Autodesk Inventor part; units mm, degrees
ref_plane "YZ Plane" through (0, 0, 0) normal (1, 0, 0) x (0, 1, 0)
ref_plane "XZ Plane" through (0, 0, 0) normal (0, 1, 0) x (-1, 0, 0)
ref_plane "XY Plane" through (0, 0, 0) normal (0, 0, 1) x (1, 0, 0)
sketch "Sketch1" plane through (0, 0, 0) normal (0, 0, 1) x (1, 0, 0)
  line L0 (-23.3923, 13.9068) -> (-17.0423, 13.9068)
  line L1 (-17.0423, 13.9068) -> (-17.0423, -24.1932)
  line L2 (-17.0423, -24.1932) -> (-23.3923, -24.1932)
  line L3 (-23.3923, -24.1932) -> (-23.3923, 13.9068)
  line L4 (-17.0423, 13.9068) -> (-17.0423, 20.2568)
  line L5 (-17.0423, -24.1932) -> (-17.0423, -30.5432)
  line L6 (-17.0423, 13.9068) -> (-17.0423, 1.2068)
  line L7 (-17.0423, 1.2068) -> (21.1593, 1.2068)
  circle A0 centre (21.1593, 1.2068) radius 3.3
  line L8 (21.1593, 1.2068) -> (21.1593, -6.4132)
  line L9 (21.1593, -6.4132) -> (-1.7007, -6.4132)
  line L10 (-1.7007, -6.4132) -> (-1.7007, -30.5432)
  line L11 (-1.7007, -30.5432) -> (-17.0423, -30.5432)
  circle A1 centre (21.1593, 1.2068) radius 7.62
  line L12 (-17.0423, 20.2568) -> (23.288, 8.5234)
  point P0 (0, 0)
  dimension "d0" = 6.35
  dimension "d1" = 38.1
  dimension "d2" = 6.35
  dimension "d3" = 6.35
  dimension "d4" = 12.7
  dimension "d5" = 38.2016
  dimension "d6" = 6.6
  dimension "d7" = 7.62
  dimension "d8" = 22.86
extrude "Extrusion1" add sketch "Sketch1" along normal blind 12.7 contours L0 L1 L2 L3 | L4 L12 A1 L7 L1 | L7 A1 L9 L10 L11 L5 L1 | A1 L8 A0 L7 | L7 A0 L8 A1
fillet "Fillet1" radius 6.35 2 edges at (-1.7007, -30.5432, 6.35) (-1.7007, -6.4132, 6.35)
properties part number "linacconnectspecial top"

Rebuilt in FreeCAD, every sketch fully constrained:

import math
import FreeCAD as App
import Part
import Sketcher
from FreeCAD import Vector
Q = App.Units.Quantity


def edges_at(feature, points):
    """Names of the edges that pass closest to the given points."""
    edges = feature.Shape.Edges
    near = lambda p: min(range(len(edges)), key=lambda i: edges[i].distToShape(Part.Vertex(*p))[0])
    return sorted({f"Edge{near(p) + 1}" for p in points})

doc = App.newDocument("Part")
body = doc.addObject("PartDesign::Body", "Body")

# Sketch on XY plane
sketch1 = doc.addObject("Sketcher::SketchObject", "Sketch")
body.addObject(sketch1)
sketch1.AttachmentSupport = (doc.XY_Plane, [""])
sketch1.MapMode = "FlatFace"
sketch1.addGeometry([
    Part.LineSegment(Vector(-17, 13.9, 0), Vector(-23.4, 13.9, 0)),  # 0
    Part.LineSegment(Vector(-23.4, 13.9, 0), Vector(-23.4, -24.2, 0)),  # 1
    Part.LineSegment(Vector(-23.4, -24.2, 0), Vector(-17, -24.2, 0)),  # 2
    Part.LineSegment(Vector(-17, -24.2, 0), Vector(-17, -30.5, 0)),  # 3
    Part.LineSegment(Vector(-17, -30.5, 0), Vector(-1.7, -30.5, 0)),  # 4
    Part.LineSegment(Vector(-1.7, -30.5, 0), Vector(-1.7, -6.4, 0)),  # 5
    Part.LineSegment(Vector(-1.7, -6.4, 0), Vector(21.2, -6.4, 0)),  # 6
    Part.ArcOfCircle(Part.Circle(Vector(21.2, 1.2, 0), Vector(0, 0, 1), 7.6), math.radians(-90), math.radians(74)),  # 7
    Part.LineSegment(Vector(23.3, 8.5, 0), Vector(-17, 20.3, 0)),  # 8
    Part.LineSegment(Vector(-17, 20.3, 0), Vector(-17, 13.9, 0)),  # 9
    Part.Circle(Vector(21.2, 1.2, 0), Vector(0, 0, 1), 3.3),  # 10
], False)
sketch1.addConstraint([
    Sketcher.Constraint("Coincident", 0, 2, 1, 1),
    Sketcher.Constraint("Coincident", 1, 2, 2, 1),
    Sketcher.Constraint("Coincident", 2, 2, 3, 1),
    Sketcher.Constraint("Coincident", 3, 2, 4, 1),
    Sketcher.Constraint("Coincident", 4, 2, 5, 1),
    Sketcher.Constraint("Coincident", 5, 2, 6, 1),
    Sketcher.Constraint("Tangent", 6, 2, 7, 1),
    Sketcher.Constraint("Tangent", 7, 2, 8, 1),
    Sketcher.Constraint("Coincident", 8, 2, 9, 1),
    Sketcher.Constraint("Coincident", 9, 2, 0, 1),
    Sketcher.Constraint("Horizontal", 0),
    Sketcher.Constraint("Vertical", 1),
    Sketcher.Constraint("Horizontal", 2),
    Sketcher.Constraint("Vertical", 3),
    Sketcher.Constraint("Horizontal", 4),
    Sketcher.Constraint("Vertical", 5),
    Sketcher.Constraint("Horizontal", 6),
    Sketcher.Constraint("Vertical", 9),
    Sketcher.Constraint("Coincident", 10, 3, 7, 3),
    Sketcher.Constraint("Vertical", 3, 2, 8, 2),
    Sketcher.Constraint("Equal", 2, 3),
    Sketcher.Constraint("Equal", 3, 9),
    Sketcher.Constraint("Radius", 7, Q("0.3 in")),
    Sketcher.Constraint("DistanceX", 6, 1, 6, 2, Q("0.9 in")),
    Sketcher.Constraint("DistanceY", 1, 2, 1, 1, Q("1.5 in")),
    Sketcher.Constraint("DistanceX", 0, 2, 0, 1, Q("0.25 in")),
    Sketcher.Constraint("DistanceY", 7, 3, 0, 2, Q("0.5 in")),
    Sketcher.Constraint("Diameter", 10, 6.6),
    Sketcher.Constraint("DistanceX", 2, 2, 7, 3, Q("1.504 in")),
    Sketcher.Constraint("DistanceY", -1, 1, 7, 3, Q("0.0475 in")),
    Sketcher.Constraint("DistanceX", -1, 1, 7, 3, 21.1593),
])
pad1 = doc.addObject("PartDesign::Pad", "Pad")
body.addObject(pad1)
pad1.Profile = sketch1
pad1.Length = Q("0.5 in")
doc.recompute()

fillet = doc.addObject("PartDesign::Fillet", "Fillet")
body.addObject(fillet)
fillet.Base = (pad1, edges_at(pad1, [(-1.701, -30.543, 6.35), (-1.701, -6.413, 6.35)]))
fillet.Radius = Q("0.25 in")

doc.recompute()
